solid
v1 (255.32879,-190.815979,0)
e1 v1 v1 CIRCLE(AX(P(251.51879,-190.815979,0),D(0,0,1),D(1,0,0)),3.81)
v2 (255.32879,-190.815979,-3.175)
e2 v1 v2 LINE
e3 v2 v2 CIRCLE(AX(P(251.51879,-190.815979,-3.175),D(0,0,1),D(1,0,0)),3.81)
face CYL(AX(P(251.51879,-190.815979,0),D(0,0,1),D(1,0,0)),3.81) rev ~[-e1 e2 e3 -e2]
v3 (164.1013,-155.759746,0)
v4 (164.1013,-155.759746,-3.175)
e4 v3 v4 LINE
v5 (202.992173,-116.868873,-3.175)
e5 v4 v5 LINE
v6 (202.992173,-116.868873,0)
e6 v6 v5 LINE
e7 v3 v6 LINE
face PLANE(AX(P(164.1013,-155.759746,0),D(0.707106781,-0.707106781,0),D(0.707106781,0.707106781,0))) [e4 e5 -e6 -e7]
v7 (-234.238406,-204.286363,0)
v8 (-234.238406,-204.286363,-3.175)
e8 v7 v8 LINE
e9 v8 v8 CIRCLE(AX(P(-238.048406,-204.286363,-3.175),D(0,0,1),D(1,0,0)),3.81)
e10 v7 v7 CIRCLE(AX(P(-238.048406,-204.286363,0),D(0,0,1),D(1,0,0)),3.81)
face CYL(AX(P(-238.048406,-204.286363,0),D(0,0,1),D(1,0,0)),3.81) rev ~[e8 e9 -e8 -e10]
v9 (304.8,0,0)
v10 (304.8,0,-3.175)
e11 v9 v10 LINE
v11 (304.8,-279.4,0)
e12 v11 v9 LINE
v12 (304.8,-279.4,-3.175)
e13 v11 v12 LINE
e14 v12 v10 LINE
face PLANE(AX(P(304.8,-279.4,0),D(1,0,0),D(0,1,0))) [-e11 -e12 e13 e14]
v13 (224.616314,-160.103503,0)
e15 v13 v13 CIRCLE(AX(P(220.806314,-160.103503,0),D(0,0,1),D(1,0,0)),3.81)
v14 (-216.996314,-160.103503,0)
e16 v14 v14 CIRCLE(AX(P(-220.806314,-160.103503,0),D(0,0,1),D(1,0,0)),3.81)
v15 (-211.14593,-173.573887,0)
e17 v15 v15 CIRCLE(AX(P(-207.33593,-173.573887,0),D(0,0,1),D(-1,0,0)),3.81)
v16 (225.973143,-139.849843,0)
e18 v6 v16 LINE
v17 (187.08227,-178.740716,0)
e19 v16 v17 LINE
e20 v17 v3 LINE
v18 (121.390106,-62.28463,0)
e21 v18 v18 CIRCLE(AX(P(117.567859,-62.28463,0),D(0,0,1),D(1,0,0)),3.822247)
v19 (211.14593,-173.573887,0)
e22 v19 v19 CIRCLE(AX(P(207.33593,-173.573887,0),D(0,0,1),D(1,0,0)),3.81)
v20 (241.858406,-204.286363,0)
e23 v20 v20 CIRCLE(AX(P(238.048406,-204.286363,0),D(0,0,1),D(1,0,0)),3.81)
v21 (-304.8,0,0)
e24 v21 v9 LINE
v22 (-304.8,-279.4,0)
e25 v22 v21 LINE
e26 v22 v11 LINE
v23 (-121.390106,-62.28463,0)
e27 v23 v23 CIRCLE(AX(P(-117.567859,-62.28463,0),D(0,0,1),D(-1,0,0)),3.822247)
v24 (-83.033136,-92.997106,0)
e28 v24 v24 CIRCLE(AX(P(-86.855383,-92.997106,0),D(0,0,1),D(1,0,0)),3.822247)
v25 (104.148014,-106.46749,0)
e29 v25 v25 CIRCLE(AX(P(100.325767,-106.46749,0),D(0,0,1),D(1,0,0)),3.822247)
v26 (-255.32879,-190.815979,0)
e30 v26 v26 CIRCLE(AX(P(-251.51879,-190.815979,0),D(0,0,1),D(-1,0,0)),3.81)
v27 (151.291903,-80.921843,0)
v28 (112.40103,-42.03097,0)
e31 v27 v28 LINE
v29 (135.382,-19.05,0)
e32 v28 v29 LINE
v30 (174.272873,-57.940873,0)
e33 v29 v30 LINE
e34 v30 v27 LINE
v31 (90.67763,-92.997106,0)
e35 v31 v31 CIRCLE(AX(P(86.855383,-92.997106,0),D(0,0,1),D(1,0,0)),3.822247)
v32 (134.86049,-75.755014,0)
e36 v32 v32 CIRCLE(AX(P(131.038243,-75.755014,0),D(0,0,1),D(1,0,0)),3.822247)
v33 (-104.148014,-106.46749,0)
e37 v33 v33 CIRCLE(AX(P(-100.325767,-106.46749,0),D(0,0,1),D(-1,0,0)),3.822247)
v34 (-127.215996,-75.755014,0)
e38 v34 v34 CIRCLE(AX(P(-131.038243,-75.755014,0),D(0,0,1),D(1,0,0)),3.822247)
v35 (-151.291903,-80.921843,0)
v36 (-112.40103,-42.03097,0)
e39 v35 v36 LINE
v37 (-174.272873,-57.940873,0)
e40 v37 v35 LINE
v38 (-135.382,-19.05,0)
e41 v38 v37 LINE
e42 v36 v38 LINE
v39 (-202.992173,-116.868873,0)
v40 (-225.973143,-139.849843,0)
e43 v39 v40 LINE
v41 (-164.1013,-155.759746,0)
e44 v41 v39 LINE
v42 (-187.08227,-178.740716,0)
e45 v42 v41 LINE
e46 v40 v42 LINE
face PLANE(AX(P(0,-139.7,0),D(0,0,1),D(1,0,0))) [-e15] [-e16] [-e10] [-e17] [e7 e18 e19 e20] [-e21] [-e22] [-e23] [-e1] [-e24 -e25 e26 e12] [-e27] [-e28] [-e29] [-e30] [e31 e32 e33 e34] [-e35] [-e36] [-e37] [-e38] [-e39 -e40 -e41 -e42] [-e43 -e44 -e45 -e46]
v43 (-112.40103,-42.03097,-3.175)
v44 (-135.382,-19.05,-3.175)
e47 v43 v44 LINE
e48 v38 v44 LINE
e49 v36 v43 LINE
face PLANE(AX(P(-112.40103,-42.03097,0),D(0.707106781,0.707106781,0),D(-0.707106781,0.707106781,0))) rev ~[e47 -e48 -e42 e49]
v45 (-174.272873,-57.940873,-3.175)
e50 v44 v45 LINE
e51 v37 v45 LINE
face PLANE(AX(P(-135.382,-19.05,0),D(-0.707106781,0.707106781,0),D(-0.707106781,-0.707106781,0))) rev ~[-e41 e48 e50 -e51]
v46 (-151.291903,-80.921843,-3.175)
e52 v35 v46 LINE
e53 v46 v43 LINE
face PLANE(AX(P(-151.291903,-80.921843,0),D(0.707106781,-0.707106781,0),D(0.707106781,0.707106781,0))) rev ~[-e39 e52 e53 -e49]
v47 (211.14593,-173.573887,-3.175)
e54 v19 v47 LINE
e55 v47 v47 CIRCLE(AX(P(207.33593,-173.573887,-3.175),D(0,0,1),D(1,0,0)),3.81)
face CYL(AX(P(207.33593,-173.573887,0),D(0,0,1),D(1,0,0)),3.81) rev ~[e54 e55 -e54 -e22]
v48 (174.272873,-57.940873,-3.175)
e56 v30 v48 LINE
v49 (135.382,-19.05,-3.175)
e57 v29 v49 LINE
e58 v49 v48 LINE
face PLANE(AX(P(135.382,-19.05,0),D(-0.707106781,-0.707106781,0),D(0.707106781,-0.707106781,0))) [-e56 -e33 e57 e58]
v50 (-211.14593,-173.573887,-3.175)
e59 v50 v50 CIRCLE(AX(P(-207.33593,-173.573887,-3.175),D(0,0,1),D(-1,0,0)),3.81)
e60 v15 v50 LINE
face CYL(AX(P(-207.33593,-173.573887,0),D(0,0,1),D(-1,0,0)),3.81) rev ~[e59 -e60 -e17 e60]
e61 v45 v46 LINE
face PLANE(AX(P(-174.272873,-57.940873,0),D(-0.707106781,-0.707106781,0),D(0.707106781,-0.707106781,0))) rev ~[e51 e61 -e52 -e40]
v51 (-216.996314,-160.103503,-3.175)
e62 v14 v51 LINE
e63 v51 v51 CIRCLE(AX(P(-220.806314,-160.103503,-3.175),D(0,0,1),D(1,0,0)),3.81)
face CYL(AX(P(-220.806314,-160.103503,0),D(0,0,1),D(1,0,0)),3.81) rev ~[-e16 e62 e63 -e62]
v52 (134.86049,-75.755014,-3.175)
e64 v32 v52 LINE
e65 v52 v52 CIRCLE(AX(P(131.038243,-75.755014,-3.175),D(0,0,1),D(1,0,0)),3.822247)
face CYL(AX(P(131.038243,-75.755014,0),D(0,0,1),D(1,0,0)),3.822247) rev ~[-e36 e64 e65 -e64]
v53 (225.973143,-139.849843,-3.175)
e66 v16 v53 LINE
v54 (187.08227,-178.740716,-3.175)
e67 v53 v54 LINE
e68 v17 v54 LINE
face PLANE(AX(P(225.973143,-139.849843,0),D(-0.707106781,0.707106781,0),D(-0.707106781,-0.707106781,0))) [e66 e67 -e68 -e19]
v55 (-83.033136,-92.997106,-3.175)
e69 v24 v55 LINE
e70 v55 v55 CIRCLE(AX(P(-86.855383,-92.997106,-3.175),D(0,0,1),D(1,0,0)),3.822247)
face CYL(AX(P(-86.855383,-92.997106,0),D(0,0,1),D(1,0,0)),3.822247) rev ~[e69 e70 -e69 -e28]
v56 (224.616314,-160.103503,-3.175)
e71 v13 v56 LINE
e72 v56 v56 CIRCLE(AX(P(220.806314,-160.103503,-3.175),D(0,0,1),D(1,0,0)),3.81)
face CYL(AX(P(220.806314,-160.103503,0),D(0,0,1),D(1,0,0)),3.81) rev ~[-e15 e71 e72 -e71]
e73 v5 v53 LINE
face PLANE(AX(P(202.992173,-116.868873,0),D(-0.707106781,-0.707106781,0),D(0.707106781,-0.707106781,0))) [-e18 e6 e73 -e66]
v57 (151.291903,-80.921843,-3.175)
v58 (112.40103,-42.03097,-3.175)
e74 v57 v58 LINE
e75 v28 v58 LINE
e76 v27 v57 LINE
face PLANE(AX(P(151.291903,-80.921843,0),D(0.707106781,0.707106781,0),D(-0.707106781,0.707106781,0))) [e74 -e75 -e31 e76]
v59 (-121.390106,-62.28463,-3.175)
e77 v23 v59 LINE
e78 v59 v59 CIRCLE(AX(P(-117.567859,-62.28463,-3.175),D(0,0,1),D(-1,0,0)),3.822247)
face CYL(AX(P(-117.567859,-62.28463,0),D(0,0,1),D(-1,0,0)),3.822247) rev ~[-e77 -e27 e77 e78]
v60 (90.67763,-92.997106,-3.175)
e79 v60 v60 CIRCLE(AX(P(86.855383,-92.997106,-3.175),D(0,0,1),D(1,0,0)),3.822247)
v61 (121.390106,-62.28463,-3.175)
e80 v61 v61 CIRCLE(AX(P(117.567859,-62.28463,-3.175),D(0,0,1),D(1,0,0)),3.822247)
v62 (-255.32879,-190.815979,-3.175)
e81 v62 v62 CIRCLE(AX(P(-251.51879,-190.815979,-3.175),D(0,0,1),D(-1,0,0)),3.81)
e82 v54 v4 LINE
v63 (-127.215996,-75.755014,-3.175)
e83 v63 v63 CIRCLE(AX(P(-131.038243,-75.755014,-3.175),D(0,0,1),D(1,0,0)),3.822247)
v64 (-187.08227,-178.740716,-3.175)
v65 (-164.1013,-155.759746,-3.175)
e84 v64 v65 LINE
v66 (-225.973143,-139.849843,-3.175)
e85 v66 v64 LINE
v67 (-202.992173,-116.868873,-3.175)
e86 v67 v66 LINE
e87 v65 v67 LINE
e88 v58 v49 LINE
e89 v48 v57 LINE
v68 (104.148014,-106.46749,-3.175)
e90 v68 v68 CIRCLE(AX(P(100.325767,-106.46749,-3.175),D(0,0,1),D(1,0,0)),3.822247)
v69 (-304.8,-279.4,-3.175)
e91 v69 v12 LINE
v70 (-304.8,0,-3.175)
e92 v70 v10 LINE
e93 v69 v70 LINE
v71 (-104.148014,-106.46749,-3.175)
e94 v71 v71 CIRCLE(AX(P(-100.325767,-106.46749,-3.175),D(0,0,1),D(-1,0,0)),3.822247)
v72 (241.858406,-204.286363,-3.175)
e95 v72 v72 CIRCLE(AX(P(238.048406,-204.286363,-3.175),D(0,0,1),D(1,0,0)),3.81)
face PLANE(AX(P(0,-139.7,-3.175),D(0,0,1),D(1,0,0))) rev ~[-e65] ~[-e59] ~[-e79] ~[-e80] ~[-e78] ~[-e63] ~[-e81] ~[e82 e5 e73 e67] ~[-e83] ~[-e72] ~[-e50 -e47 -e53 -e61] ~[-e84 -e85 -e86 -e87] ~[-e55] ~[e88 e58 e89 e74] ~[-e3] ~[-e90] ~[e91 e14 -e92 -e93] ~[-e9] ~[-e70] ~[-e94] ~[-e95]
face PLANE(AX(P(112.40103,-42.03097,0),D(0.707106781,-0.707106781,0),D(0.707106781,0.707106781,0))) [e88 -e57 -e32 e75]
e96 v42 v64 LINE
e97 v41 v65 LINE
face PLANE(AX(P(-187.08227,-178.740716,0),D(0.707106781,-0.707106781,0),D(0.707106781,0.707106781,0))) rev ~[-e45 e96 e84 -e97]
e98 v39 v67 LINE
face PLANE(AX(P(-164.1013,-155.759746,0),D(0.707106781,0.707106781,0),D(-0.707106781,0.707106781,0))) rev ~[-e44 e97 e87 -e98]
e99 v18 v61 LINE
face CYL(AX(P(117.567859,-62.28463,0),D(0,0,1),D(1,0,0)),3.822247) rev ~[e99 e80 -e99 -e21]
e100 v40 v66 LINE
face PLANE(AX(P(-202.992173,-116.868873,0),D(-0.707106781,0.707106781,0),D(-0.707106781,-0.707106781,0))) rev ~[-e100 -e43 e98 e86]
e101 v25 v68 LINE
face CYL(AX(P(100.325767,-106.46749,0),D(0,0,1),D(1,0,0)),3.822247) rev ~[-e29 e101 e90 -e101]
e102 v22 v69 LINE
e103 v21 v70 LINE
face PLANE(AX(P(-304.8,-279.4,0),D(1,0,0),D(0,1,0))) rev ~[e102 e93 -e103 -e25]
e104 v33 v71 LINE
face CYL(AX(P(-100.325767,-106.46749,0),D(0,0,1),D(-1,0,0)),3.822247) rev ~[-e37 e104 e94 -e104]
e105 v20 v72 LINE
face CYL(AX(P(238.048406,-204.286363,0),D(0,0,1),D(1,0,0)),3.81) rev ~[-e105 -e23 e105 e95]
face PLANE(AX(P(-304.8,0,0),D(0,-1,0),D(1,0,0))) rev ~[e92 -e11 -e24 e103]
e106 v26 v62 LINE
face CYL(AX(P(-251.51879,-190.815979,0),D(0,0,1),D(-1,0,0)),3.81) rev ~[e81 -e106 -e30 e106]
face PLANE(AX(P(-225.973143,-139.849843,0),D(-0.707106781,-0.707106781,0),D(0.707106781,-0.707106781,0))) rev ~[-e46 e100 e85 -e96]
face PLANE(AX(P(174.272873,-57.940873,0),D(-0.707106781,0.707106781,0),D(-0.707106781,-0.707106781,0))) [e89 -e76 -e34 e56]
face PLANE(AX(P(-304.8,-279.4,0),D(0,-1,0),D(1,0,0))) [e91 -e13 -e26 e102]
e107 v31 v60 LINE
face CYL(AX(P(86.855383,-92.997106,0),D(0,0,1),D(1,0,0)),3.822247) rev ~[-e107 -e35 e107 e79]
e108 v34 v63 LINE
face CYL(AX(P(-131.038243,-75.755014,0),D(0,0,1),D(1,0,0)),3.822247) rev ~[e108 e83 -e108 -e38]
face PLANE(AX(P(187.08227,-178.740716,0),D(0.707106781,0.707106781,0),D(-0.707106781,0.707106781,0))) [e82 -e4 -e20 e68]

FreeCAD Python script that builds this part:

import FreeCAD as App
import Part
import Sketcher
from FreeCAD import Vector
Q = App.Units.Quantity


def add_polygon(sketch, points):
    """Adds a closed chain of lines whose ends are joined by coincident constraints."""
    first, n = sketch.GeometryCount, len(points)
    for a, b in zip(points, points[1:] + points[:1]):
        sketch.addGeometry(Part.LineSegment(App.Vector(*a, 0), App.Vector(*b, 0)), False)
    for i in range(n):
        sketch.addConstraint(Sketcher.Constraint("Coincident", first + i, 2, first + (i + 1) % n, 1))

doc = App.newDocument("Part")
body = doc.addObject("PartDesign::Body", "Body")

# Sketch on XY plane
sketch1 = body.newObject("Sketcher::SketchObject", "Sketch")
sketch1.AttachmentSupport = (doc.getObject("XY_Plane"), [""])
sketch1.MapMode = "FlatFace"
add_polygon(sketch1, [(-304.8, 0), (-304.8, -279.4), (304.8, -279.4), (304.8, 0)])  # lines 0-3
sketch1.addConstraint([
    Sketcher.Constraint("Vertical", 0),
    Sketcher.Constraint("Horizontal", 1),
    Sketcher.Constraint("Vertical", 2),
    Sketcher.Constraint("Horizontal", 3),
    Sketcher.Constraint("Symmetric", 2, 2, 3, 2, -1, 1),
    Sketcher.Constraint("DistanceX", 1, 1, 1, 2, Q("24 in")),
    Sketcher.Constraint("DistanceY", 0, 2, 0, 1, Q("11 in")),
])
pad1 = body.newObject("PartDesign::Pad", "Pad")
pad1.Profile = sketch1
pad1.Length = Q("0.125 in")
pad1.Reversed = True

# Sketch on XY plane
sketch2 = body.newObject("Sketcher::SketchObject", "Sketch001")
sketch2.AttachmentSupport = (doc.getObject("XY_Plane"), [""])
sketch2.MapMode = "FlatFace"
add_polygon(sketch2, [(-135.382, -19.05), (-174.272873, -57.940873), (-151.291903, -80.921843), (-112.40103, -42.03097)])  # lines 0-3
add_polygon(sketch2, [(-225.973143, -139.849843), (-187.08227, -178.740716), (-164.1013, -155.759746), (-202.992173, -116.868873)])  # lines 4-7
add_polygon(sketch2, [(151.291903, -80.921843), (174.272873, -57.940873), (135.382, -19.05), (112.40103, -42.03097)])  # lines 8-11
add_polygon(sketch2, [(164.1013, -155.759746), (187.08227, -178.740716), (225.973143, -139.849843), (202.992173, -116.868873)])  # lines 12-15
sketch2.addGeometry(Part.Circle(Vector(-131.038243, -75.755014, 0), Vector(0, 0, 1), 3.822247), False)  # 16
sketch2.addGeometry(Part.Circle(Vector(-100.325767, -106.46749, 0), Vector(0, 0, 1), 3.822247), False)  # 17
sketch2.addGeometry(Part.Circle(Vector(-238.048406, -204.286363, 0), Vector(0, 0, 1), 3.81), False)  # 18
sketch2.addGeometry(Part.Circle(Vector(-207.33593, -173.573887, 0), Vector(0, 0, 1), 3.81), False)  # 19
sketch2.addGeometry(Part.Circle(Vector(-117.567859, -62.28463, 0), Vector(0, 0, 1), 3.822247), False)  # 20
sketch2.addGeometry(Part.Circle(Vector(-86.855383, -92.997106, 0), Vector(0, 0, 1), 3.822247), False)  # 21
sketch2.addGeometry(Part.Circle(Vector(-220.806314, -160.103503, 0), Vector(0, 0, 1), 3.81), False)  # 22
sketch2.addGeometry(Part.Circle(Vector(-251.51879, -190.815979, 0), Vector(0, 0, 1), 3.81), False)  # 23
sketch2.addConstraint([
    Sketcher.Constraint("Equal", 16, 17),
    Sketcher.Constraint("Equal", 18, 19),
    Sketcher.Constraint("Equal", 17, 20),
    Sketcher.Constraint("Equal", 20, 21),
    Sketcher.Constraint("Equal", 19, 22),
    Sketcher.Constraint("Equal", 22, 23),
    Sketcher.Constraint("Symmetric", 0, 2, 8, 2, -2),
    Sketcher.Constraint("Symmetric", 3, 2, 9, 2, -2),
    Sketcher.Constraint("Symmetric", 2, 2, 10, 2, -2),
    Sketcher.Constraint("Symmetric", 1, 2, 11, 2, -2),
    Sketcher.Constraint("Symmetric", 4, 2, 12, 2, -2),
    Sketcher.Constraint("Symmetric", 7, 2, 13, 2, -2),
    Sketcher.Constraint("Symmetric", 6, 2, 14, 2, -2),
    Sketcher.Constraint("Symmetric", 5, 2, 15, 2, -2),
    Sketcher.Constraint("Perpendicular", 0, 1),
    Sketcher.Constraint("Perpendicular", 1, 2),
    Sketcher.Constraint("Perpendicular", 2, 3),
    Sketcher.Constraint("Parallel", 3, 4),
    Sketcher.Constraint("Perpendicular", 4, 5),
    Sketcher.Constraint("Perpendicular", 5, 6),
    Sketcher.Constraint("Perpendicular", 6, 7),
    Sketcher.Constraint("Parallel", 7, 8),
    Sketcher.Constraint("Equal", 2, 4),
    Sketcher.Constraint("Equal", 3, 5),
    Sketcher.Constraint("Diameter", 18, Q("0.3 in")),
    Sketcher.Constraint("DistanceX", 3, 2, -1, 1, Q("5.33 in")),
    Sketcher.Constraint("DistanceY", 3, 2, -1, 1, Q("0.75 in")),
    Sketcher.Constraint("DistanceY", 13, 2, 11, 2, Q("2.32 in")),
    Sketcher.Constraint("Diameter", 16, Q("7.644494 mm")),
    Sketcher.Constraint("Distance", 0, Q("55 mm")),
    Sketcher.Constraint("Distance", 1, Q("32.5 mm")),
    Sketcher.Constraint("DistanceX", 5, 2, -1, 1, Q("164.1013 mm")),
    Sketcher.Constraint("DistanceY", 17, 3, -1, 1, Q("106.46749 mm")),
    Sketcher.Constraint("DistanceX", 19, 3, -1, 1, Q("207.33593 mm")),
    Sketcher.Constraint("DistanceX", 20, 3, -1, 1, Q("117.567859 mm")),
    Sketcher.Constraint("DistanceY", 20, 3, -1, 1, Q("62.28463 mm")),
    Sketcher.Constraint("DistanceX", 23, 3, -1, 1, Q("251.51879 mm")),
    Sketcher.Constraint("DistanceY", 23, 3, -1, 1, Q("190.815979 mm")),
    Sketcher.Constraint("DistanceY", 18, 3, 16, 3, Q("128.531349 mm")),
    Sketcher.Constraint("DistanceX", 18, 3, 17, 3, Q("137.722638 mm")),
    Sketcher.Constraint("DistanceX", 20, 3, 17, 3, Q("17.242092 mm")),
    Sketcher.Constraint("DistanceX", 16, 3, 21, 3, Q("44.18286 mm")),
    Sketcher.Constraint("DistanceY", 21, 3, 16, 3, Q("17.242092 mm")),
    Sketcher.Constraint("DistanceY", 19, 3, 21, 3, Q("80.576781 mm")),
    Sketcher.Constraint("DistanceX", 18, 3, 22, 3, Q("17.242092 mm")),
    Sketcher.Constraint("DistanceY", 18, 3, 22, 3, Q("44.18286 mm")),
    Sketcher.Constraint("DistanceX", 22, 3, 16, 3, Q("89.768071 mm")),
    Sketcher.Constraint("DistanceY", 23, 3, 19, 3, Q("17.242092 mm")),
])
pocket1 = body.newObject("PartDesign::Pocket", "Pocket")
pocket1.Profile = sketch2
pocket1.Type = "ThroughAll"

# Sketch on XY plane
sketch3 = body.newObject("Sketcher::SketchObject", "Sketch002")
sketch3.AttachmentSupport = (doc.getObject("XY_Plane"), [""])
sketch3.MapMode = "FlatFace"
sketch3.addGeometry([
    Part.Circle(Vector(131.038243, -75.755014, 0), Vector(0, 0, 1), 3.822247),  # 0
    Part.Circle(Vector(117.567859, -62.28463, 0), Vector(0, 0, 1), 3.822247),  # 1
    Part.Circle(Vector(86.855383, -92.997106, 0), Vector(0, 0, 1), 3.822247),  # 2
    Part.Circle(Vector(100.325767, -106.46749, 0), Vector(0, 0, 1), 3.822247),  # 3
    Part.Circle(Vector(238.048406, -204.286363, 0), Vector(0, 0, 1), 3.81),  # 4
    Part.Circle(Vector(251.51879, -190.815979, 0), Vector(0, 0, 1), 3.81),  # 5
    Part.Circle(Vector(220.806314, -160.103503, 0), Vector(0, 0, 1), 3.81),  # 6
    Part.Circle(Vector(207.33593, -173.573887, 0), Vector(0, 0, 1), 3.81),  # 7
], False)
sketch3.addConstraint([
    Sketcher.Constraint("Equal", 0, 1),
    Sketcher.Constraint("Equal", 1, 2),
    Sketcher.Constraint("Equal", 2, 3),
    Sketcher.Constraint("Equal", 4, 5),
    Sketcher.Constraint("Equal", 5, 6),
    Sketcher.Constraint("Equal", 6, 7),
    Sketcher.Constraint("Diameter", 4, Q("0.3 in")),
    Sketcher.Constraint("Diameter", 0, Q("7.644494 mm")),
    Sketcher.Constraint("DistanceX", -1, 1, 1, 3, Q("117.567859 mm")),
    Sketcher.Constraint("DistanceY", 1, 3, -1, 1, Q("62.28463 mm")),
    Sketcher.Constraint("DistanceY", 3, 3, -1, 1, Q("106.46749 mm")),
    Sketcher.Constraint("DistanceX", -1, 1, 5, 3, Q("251.51879 mm")),
    Sketcher.Constraint("DistanceY", 5, 3, -1, 1, Q("190.815979 mm")),
    Sketcher.Constraint("DistanceX", -1, 1, 7, 3, Q("207.33593 mm")),
    Sketcher.Constraint("DistanceX", 2, 3, 0, 3, Q("44.18286 mm")),
    Sketcher.Constraint("DistanceY", 2, 3, 0, 3, Q("17.242092 mm")),
    Sketcher.Constraint("DistanceX", 3, 3, 1, 3, Q("17.242092 mm")),
    Sketcher.Constraint("DistanceY", 4, 3, 0, 3, Q("128.531349 mm")),
    Sketcher.Constraint("DistanceX", 3, 3, 4, 3, Q("137.722638 mm")),
    Sketcher.Constraint("DistanceX", 6, 3, 4, 3, Q("17.242092 mm")),
    Sketcher.Constraint("DistanceY", 4, 3, 6, 3, Q("44.18286 mm")),
    Sketcher.Constraint("DistanceX", 0, 3, 6, 3, Q("89.768071 mm")),
    Sketcher.Constraint("DistanceY", 5, 3, 7, 3, Q("17.242092 mm")),
    Sketcher.Constraint("DistanceY", 0, 3, -1, 1, Q("75.755014 mm")),
])
pocket2 = body.newObject("PartDesign::Pocket", "Pocket001")
pocket2.Profile = sketch3
pocket2.Type = "ThroughAll"

doc.recompute()
